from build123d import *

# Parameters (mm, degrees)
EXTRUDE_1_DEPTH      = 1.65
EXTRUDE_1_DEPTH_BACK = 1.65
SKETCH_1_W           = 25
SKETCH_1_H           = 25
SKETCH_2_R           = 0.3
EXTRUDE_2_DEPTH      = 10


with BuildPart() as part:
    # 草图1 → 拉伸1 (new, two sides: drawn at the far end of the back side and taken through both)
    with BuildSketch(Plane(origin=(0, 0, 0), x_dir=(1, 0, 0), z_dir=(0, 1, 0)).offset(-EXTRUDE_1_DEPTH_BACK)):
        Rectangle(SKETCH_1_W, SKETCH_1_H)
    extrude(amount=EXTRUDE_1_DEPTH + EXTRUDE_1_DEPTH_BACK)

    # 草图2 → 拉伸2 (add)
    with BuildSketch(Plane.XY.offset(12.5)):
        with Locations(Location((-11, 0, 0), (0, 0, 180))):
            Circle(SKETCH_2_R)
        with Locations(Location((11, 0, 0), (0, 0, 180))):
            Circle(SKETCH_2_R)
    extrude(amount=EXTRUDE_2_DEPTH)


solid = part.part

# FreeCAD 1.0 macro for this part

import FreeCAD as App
import Part
import Sketcher
Q = App.Units.Quantity

doc = App.newDocument("Part")
body = doc.addObject("PartDesign::Body", "Body")

# Sketch on XZ plane
sketch1 = doc.addObject("Sketcher::SketchObject", "Sketch")
body.addObject(sketch1)
sketch1.AttachmentSupport = (doc.XZ_Plane, [""])
sketch1.MapMode = "FlatFace"
sketch1.addGeometry([
    Part.LineSegment(App.Vector(-12, -12, 0), App.Vector(-12, 12, 0)),
    Part.LineSegment(App.Vector(-12, 12, 0), App.Vector(12, 12, 0)),
    Part.LineSegment(App.Vector(12, 12, 0), App.Vector(12, -12, 0)),
    Part.LineSegment(App.Vector(12, -12, 0), App.Vector(-12, -12, 0)),
], False)
sketch1.addConstraint([
    Sketcher.Constraint("Coincident", 0, 2, 1, 1),
    Sketcher.Constraint("Coincident", 1, 2, 2, 1),
    Sketcher.Constraint("Coincident", 2, 2, 3, 1),
    Sketcher.Constraint("Coincident", 3, 2, 0, 1),
    Sketcher.Constraint("Vertical", 0),
    Sketcher.Constraint("Horizontal", 1),
    Sketcher.Constraint("Vertical", 2),
    Sketcher.Constraint("Horizontal", 3),
    Sketcher.Constraint("Symmetric", 0, 2, 2, 2, -1, 1),
    Sketcher.Constraint("Equal", 3, 0),
    Sketcher.Constraint("DistanceX", 1, 1, 1, 2, Q("25 mm")),
])
pad1 = doc.addObject("PartDesign::Pad", "Pad")
body.addObject(pad1)
pad1.Profile = sketch1
pad1.Type = "TwoLengths"
pad1.Length = 1.65
pad1.Length2 = 1.65
pad1.Reversed = True

# Sketch on XY plane
sketch2 = doc.addObject("Sketcher::SketchObject", "Sketch001")
body.addObject(sketch2)
sketch2.AttachmentSupport = (doc.XY_Plane, [""])
sketch2.MapMode = "FlatFace"
sketch2.AttachmentOffset = App.Placement(App.Vector(0, 0, 12.5), App.Rotation())
sketch2.addGeometry([
    Part.Circle(App.Vector(-11, 0, 0), App.Vector(0, 0, 1), 0.3),
    Part.Circle(App.Vector(11, 0, 0), App.Vector(0, 0, 1), 0.3),
], False)
sketch2.addConstraint([
    Sketcher.Constraint("Equal", 0, 1),
    Sketcher.Constraint("Symmetric", 0, 3, 1, 3, -1, 1),
    Sketcher.Constraint("PointOnObject", 0, 3, -1),
    Sketcher.Constraint("Diameter", 0, Q("0.6 mm")),
    Sketcher.Constraint("DistanceX", 0, 3, -1, 1, Q("11 mm")),
])
pad2 = doc.addObject("PartDesign::Pad", "Pad001")
body.addObject(pad2)
pad2.Profile = sketch2
pad2.Length = 10

doc.recompute()
